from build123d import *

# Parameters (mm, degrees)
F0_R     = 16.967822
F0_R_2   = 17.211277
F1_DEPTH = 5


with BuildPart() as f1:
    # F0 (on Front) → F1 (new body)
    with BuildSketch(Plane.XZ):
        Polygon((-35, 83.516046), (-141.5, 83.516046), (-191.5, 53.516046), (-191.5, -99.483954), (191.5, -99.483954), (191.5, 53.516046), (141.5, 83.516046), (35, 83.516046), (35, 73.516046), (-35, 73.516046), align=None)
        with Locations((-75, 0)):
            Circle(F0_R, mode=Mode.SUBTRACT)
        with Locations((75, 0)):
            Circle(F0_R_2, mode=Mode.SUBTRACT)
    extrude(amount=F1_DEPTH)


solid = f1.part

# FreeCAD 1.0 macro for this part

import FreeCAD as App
import Part
import Sketcher

V = App.Vector
Q = App.Units.Quantity

doc = App.newDocument("Part")
body = doc.addObject("PartDesign::Body", "Body")

# Sketch on XZ plane
sketch1 = doc.addObject("Sketcher::SketchObject", "Sketch")
body.addObject(sketch1)
sketch1.AttachmentSupport = (doc.XZ_Plane, [""])
sketch1.MapMode = "FlatFace"
sketch1.addGeometry([
    Part.LineSegment(V(-35, 84, 0), V(-142, 84, 0)),  # 0
    Part.LineSegment(V(-142, 84, 0), V(-192, 54, 0)),  # 1
    Part.LineSegment(V(-192, 54, 0), V(-192, -99, 0)),  # 2
    Part.LineSegment(V(-192, -99, 0), V(192, -99, 0)),  # 3
    Part.LineSegment(V(192, -99, 0), V(192, 54, 0)),  # 4
    Part.LineSegment(V(192, 54, 0), V(142, 84, 0)),  # 5
    Part.LineSegment(V(142, 84, 0), V(35, 84, 0)),  # 6
    Part.LineSegment(V(35, 84, 0), V(35, 74, 0)),  # 7
    Part.LineSegment(V(35, 74, 0), V(-35, 74, 0)),  # 8
    Part.LineSegment(V(-35, 74, 0), V(-35, 84, 0)),  # 9
    Part.Circle(V(-75, 0, 0), V(0, 0, 1), 17),  # 10
    Part.Circle(V(75, 0, 0), V(0, 0, 1), 17),  # 11
], False)
sketch1.addConstraint([
    Sketcher.Constraint("Coincident", 0, 2, 1, 1),
    Sketcher.Constraint("Coincident", 1, 2, 2, 1),
    Sketcher.Constraint("Coincident", 2, 2, 3, 1),
    Sketcher.Constraint("Coincident", 3, 2, 4, 1),
    Sketcher.Constraint("Coincident", 4, 2, 5, 1),
    Sketcher.Constraint("Coincident", 5, 2, 6, 1),
    Sketcher.Constraint("Coincident", 6, 2, 7, 1),
    Sketcher.Constraint("Coincident", 7, 2, 8, 1),
    Sketcher.Constraint("Coincident", 8, 2, 9, 1),
    Sketcher.Constraint("Coincident", 9, 2, 0, 1),
    Sketcher.Constraint("Horizontal", 0),
    Sketcher.Constraint("Vertical", 2),
    Sketcher.Constraint("Horizontal", 3),
    Sketcher.Constraint("Vertical", 4),
    Sketcher.Constraint("Horizontal", 6),
    Sketcher.Constraint("Vertical", 7),
    Sketcher.Constraint("Horizontal", 8),
    Sketcher.Constraint("Vertical", 9),
    Sketcher.Constraint("Symmetric", 10, 3, 11, 3, -1, 1),
    Sketcher.Constraint("Symmetric", 1, 2, 4, 2, -2),
    Sketcher.Constraint("Symmetric", 0, 2, 5, 2, -2),
    Sketcher.Constraint("PointOnObject", 10, 3, -1),
    Sketcher.Constraint("Equal", 0, 6),
    Sketcher.Constraint("DistanceX", 3, 1, 3, 2, Q("383 mm")),
    Sketcher.Constraint("DistanceX", 8, 2, 8, 1, Q("70 mm")),
    Sketcher.Constraint("DistanceY", 2, 2, 2, 1, Q("153 mm")),
    Sketcher.Constraint("DistanceY", 7, 2, 7, 1, Q("10 mm")),
    Sketcher.Constraint("DistanceX", 0, 2, 0, 1, Q("106.5 mm")),
    Sketcher.Constraint("DistanceX", 10, 3, -1, 1, Q("75 mm")),
    Sketcher.Constraint("DistanceY", 1, 2, 0, 2, Q("30 mm")),
    Sketcher.Constraint("Diameter", 10, Q("33.935644 mm")),
    Sketcher.Constraint("Diameter", 11, Q("34.422554 mm")),
    Sketcher.Constraint("DistanceY", -1, 1, 0, 2, Q("83.516046 mm")),
])
pad1 = doc.addObject("PartDesign::Pad", "Pad")
body.addObject(pad1)
pad1.Profile = sketch1
pad1.Length = 5

doc.recompute()
